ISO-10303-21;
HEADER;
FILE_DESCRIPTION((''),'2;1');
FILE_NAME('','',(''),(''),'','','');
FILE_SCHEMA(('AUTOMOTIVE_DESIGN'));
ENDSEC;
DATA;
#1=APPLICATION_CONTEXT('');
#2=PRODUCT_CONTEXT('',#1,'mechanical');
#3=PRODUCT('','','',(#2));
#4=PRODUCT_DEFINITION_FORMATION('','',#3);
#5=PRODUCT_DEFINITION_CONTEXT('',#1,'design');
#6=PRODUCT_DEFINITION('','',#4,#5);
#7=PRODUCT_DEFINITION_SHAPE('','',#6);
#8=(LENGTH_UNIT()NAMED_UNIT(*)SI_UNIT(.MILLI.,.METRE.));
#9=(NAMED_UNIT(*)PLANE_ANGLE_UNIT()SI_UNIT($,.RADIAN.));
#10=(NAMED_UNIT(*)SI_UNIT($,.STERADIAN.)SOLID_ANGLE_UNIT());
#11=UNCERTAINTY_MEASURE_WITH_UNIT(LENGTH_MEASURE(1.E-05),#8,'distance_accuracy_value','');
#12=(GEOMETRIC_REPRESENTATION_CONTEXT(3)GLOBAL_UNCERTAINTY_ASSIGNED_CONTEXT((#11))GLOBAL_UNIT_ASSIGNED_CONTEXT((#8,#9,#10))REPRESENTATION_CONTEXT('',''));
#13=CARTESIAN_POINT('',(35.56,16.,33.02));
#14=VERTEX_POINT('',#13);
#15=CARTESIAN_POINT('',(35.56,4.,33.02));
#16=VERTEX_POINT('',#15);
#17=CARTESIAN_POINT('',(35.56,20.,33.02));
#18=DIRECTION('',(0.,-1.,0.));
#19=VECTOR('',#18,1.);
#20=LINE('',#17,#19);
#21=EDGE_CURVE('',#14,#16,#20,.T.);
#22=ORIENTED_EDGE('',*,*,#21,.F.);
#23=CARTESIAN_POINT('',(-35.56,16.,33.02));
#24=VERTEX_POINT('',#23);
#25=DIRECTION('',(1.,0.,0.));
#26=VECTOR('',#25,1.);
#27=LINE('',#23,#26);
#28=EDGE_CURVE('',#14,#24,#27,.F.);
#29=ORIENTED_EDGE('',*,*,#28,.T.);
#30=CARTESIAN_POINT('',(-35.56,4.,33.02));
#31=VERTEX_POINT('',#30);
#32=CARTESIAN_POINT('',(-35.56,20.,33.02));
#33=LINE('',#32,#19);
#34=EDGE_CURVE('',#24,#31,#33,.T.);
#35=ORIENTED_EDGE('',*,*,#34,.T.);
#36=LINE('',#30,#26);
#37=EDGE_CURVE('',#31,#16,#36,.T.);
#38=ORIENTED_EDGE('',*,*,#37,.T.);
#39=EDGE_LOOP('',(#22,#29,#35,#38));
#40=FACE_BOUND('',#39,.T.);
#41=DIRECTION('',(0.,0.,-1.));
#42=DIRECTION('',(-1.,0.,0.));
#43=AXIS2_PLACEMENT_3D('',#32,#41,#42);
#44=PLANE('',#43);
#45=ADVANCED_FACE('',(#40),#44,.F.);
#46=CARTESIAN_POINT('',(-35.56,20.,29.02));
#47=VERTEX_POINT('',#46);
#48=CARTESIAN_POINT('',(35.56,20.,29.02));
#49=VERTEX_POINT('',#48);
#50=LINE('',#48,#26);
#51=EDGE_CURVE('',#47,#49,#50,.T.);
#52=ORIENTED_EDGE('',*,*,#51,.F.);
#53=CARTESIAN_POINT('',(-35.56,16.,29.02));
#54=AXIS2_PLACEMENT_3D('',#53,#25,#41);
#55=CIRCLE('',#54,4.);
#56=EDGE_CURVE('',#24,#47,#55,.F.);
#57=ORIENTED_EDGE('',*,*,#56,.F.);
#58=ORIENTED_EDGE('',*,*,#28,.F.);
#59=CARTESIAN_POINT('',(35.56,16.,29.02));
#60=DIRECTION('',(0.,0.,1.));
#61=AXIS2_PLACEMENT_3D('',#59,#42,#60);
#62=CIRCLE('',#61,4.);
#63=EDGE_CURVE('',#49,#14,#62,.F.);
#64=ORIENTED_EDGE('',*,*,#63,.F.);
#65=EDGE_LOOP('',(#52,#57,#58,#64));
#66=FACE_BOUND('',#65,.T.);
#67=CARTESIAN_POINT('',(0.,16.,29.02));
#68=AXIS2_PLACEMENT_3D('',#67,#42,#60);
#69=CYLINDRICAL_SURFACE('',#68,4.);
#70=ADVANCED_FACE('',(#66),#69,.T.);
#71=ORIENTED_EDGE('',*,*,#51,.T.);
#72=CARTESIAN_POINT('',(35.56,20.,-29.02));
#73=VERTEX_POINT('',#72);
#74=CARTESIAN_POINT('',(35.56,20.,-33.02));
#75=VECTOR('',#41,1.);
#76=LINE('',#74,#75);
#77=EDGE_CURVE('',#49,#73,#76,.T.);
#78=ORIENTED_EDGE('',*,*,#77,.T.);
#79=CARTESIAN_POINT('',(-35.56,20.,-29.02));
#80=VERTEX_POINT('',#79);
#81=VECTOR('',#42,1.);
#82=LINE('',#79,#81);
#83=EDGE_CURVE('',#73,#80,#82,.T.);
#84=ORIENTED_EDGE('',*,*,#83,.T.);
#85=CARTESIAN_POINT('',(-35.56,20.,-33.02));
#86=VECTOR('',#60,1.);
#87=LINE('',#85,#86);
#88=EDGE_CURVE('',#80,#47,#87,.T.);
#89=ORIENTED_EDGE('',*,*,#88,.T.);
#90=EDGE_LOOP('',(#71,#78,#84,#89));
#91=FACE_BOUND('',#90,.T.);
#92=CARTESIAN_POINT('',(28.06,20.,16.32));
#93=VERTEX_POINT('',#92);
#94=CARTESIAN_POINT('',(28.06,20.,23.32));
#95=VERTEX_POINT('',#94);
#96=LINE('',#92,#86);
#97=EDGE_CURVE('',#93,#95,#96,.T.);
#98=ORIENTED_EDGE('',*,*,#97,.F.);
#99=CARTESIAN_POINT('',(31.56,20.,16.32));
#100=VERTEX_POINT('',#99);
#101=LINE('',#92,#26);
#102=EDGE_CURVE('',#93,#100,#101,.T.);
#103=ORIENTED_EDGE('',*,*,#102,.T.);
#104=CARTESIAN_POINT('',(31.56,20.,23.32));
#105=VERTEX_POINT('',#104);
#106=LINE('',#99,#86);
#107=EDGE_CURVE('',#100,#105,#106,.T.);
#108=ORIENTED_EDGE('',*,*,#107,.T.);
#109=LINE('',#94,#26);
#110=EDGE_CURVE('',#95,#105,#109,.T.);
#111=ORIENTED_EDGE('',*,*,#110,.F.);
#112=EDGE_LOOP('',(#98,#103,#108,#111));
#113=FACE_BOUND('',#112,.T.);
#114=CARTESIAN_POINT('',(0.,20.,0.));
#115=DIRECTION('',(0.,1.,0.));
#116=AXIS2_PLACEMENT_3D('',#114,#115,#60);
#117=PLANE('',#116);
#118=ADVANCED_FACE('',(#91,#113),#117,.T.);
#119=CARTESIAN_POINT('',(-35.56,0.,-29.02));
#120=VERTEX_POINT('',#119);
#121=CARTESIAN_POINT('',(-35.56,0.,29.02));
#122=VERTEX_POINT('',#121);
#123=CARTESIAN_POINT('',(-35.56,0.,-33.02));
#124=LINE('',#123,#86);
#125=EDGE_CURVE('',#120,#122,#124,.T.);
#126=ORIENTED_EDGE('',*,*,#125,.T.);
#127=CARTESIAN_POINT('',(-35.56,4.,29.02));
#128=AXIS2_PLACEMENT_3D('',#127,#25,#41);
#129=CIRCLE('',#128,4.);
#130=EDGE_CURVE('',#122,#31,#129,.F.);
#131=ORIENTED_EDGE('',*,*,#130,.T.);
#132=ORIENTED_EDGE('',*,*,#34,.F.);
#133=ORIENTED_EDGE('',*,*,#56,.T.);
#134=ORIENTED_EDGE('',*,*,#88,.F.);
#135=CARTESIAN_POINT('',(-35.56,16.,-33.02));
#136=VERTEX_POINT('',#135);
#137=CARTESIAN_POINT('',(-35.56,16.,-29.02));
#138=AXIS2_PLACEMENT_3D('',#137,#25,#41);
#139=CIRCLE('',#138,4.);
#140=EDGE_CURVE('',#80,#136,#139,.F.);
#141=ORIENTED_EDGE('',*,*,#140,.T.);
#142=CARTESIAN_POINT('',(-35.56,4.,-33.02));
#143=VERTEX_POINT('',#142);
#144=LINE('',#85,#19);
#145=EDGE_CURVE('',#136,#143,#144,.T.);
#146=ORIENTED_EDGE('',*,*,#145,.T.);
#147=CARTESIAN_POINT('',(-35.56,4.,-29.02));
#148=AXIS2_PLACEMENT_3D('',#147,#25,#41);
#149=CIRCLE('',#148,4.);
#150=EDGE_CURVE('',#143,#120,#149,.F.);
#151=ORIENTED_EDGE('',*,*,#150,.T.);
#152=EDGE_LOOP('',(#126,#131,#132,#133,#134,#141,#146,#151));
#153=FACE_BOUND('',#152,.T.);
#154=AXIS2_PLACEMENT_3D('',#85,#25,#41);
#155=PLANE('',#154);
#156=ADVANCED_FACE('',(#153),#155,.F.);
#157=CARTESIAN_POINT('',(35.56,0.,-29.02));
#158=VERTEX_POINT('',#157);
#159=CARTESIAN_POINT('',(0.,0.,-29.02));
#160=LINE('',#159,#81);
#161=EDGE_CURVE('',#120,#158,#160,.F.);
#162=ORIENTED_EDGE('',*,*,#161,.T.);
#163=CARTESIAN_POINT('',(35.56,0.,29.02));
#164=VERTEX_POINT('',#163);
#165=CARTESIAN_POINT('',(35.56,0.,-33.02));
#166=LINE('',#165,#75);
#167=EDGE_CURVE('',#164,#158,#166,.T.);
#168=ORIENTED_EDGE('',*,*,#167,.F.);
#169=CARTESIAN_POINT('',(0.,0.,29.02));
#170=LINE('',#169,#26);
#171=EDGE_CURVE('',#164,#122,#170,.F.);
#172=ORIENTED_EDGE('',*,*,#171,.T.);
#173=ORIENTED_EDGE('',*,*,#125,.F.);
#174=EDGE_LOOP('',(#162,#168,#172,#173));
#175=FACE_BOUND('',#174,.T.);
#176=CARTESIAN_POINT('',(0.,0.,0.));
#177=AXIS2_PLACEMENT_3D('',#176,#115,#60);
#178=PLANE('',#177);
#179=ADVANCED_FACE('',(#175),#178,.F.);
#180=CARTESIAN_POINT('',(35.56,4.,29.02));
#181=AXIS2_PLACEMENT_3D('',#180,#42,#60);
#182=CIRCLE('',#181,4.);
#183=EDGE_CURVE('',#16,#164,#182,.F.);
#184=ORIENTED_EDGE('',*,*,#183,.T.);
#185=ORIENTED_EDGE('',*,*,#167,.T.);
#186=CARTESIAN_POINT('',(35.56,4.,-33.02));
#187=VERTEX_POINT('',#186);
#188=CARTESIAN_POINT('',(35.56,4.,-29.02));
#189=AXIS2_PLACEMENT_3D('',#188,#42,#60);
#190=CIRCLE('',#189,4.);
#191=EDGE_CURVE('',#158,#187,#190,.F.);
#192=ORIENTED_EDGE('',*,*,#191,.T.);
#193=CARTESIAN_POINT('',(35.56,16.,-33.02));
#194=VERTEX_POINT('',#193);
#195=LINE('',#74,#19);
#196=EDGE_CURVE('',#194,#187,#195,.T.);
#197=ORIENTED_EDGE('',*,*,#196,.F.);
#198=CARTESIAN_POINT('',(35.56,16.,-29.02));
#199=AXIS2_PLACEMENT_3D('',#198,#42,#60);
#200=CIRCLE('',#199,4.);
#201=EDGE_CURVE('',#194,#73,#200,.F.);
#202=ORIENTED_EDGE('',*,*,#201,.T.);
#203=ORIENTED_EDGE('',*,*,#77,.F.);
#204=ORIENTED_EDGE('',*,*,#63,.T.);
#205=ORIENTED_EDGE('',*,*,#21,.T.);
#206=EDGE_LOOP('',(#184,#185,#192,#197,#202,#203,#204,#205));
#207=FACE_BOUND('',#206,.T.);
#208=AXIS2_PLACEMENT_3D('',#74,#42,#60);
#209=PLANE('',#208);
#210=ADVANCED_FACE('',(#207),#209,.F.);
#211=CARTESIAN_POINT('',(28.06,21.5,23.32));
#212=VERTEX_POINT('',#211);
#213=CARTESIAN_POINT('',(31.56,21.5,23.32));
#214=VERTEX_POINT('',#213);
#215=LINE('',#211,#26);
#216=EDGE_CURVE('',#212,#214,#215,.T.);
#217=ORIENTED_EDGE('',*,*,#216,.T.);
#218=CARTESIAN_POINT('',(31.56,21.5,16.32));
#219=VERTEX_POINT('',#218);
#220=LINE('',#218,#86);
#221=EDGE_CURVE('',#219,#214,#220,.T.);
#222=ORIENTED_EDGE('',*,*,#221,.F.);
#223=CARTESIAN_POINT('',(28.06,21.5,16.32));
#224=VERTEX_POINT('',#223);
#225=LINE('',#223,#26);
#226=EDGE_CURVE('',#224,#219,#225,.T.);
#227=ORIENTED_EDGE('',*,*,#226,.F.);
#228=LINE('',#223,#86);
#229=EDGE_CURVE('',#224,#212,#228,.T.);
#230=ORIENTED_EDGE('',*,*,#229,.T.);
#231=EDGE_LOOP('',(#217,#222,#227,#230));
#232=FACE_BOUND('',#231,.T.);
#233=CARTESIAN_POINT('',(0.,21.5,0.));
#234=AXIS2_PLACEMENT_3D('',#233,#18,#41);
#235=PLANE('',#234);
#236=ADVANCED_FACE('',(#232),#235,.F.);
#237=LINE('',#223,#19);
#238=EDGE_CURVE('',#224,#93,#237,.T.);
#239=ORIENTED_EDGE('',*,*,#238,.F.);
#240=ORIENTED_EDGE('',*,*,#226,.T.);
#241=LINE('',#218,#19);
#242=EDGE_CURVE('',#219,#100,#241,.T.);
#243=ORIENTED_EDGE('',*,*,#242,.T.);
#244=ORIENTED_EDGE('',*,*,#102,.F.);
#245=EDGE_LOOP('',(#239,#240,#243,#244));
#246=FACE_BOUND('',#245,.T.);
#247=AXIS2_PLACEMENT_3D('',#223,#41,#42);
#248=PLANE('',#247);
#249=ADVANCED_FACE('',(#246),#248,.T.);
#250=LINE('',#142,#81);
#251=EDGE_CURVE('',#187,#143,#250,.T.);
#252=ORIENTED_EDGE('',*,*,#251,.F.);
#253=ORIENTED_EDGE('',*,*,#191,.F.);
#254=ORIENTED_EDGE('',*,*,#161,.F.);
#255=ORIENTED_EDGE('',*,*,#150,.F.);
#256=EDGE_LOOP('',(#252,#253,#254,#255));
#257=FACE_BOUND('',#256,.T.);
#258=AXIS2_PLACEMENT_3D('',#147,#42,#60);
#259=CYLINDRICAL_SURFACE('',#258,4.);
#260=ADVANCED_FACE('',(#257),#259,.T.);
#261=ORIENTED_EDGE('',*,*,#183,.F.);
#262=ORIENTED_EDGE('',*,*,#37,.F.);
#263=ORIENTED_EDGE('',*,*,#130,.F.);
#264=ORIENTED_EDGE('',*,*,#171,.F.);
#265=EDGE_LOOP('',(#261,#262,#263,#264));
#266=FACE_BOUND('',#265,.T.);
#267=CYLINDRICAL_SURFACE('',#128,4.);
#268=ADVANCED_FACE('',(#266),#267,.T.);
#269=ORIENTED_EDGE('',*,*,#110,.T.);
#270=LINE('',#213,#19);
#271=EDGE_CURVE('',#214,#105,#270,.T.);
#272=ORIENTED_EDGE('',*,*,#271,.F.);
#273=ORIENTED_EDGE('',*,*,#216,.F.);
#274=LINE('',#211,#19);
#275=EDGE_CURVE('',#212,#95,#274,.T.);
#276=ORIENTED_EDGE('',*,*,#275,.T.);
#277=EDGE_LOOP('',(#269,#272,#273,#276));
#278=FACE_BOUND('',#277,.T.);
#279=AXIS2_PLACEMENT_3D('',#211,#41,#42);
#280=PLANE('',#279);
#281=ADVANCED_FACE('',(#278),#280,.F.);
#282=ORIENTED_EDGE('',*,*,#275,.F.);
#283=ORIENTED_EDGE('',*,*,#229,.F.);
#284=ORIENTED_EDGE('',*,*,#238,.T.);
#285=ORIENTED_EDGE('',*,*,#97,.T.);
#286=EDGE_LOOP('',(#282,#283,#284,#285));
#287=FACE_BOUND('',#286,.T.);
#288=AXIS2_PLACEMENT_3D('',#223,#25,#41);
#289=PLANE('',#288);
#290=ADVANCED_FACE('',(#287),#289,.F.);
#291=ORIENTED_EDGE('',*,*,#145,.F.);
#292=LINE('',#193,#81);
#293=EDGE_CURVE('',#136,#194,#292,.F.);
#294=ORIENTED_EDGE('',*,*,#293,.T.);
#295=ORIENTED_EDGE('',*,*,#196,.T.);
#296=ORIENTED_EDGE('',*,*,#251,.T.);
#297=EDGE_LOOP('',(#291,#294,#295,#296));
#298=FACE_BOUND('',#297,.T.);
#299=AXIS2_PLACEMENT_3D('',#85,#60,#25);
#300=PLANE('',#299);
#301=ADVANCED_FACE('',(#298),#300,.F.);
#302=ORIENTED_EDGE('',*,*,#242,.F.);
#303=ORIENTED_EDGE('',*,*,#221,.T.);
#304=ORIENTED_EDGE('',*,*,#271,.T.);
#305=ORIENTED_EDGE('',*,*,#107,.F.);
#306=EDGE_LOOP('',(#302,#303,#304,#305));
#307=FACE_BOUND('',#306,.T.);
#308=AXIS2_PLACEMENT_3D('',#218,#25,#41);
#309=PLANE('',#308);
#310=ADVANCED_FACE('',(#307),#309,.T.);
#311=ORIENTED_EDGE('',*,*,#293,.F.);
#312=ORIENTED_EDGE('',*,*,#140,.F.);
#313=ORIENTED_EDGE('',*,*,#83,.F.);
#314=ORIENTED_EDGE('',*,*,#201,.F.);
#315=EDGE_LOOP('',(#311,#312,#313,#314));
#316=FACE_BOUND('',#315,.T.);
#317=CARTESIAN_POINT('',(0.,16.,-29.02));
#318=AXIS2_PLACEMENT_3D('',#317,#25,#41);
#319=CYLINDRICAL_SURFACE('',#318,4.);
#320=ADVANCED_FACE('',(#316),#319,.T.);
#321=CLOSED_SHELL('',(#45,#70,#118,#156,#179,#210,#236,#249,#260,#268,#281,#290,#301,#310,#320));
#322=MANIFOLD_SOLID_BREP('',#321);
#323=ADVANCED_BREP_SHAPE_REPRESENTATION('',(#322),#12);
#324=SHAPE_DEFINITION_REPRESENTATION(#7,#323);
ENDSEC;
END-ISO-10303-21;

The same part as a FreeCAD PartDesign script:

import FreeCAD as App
import Part
import Sketcher
from FreeCAD import Vector


def edges_at(feature, points):
    """Names of the edges that pass closest to the given points."""
    edges = feature.Shape.Edges
    near = lambda p: min(range(len(edges)), key=lambda i: edges[i].distToShape(Part.Vertex(*p))[0])
    return sorted({f"Edge{near(p) + 1}" for p in points})


def add_polygon(sketch, points):
    """Adds a closed chain of lines whose ends are joined by coincident constraints."""
    first, n = sketch.GeometryCount, len(points)
    for a, b in zip(points, points[1:] + points[:1]):
        sketch.addGeometry(Part.LineSegment(App.Vector(*a, 0), App.Vector(*b, 0)), False)
    for i in range(n):
        sketch.addConstraint(Sketcher.Constraint("Coincident", first + i, 2, first + (i + 1) % n, 1))

doc = App.newDocument("Part")
body = doc.addObject("PartDesign::Body", "Body")

# Sketch on XZ plane
sketch1 = body.newObject("Sketcher::SketchObject", "Sketch")
sketch1.AttachmentSupport = (doc.getObject("XZ_Plane"), [""])
sketch1.MapMode = "FlatFace"
add_polygon(sketch1, [(-36, -33), (-36, 33), (36, 33), (36, -33)])  # lines 0-3
sketch1.addConstraint([
    Sketcher.Constraint("Vertical", 0),
    Sketcher.Constraint("Horizontal", 1),
    Sketcher.Constraint("Vertical", 2),
    Sketcher.Constraint("Horizontal", 3),
    Sketcher.Constraint("Symmetric", 0, 2, 2, 2, -1, 1),
    Sketcher.Constraint("DistanceX", 1, 1, 1, 2, 71.12),
    Sketcher.Constraint("DistanceY", 0, 1, 0, 2, 66.04),
])
pad1 = body.newObject("PartDesign::Pad", "Pad")
pad1.Profile = sketch1
pad1.Length = 20
pad1.Reversed = True
doc.recompute()

fillet = body.newObject("PartDesign::Fillet", "Fillet")
fillet.Base = (pad1, edges_at(pad1, [
    (0, 20, 33.02),
    (0, 0, 33.02),
    (0, 0, -33.02),
    (0, 20, -33.02),
]))
fillet.Radius = 4

# Sketch on XZ plane
sketch2 = body.newObject("Sketcher::SketchObject", "Sketch001")
sketch2.AttachmentSupport = (doc.getObject("XZ_Plane"), [""])
sketch2.MapMode = "FlatFace"
sketch2.AttachmentOffset = App.Placement(Vector(0, 0, -20), App.Rotation())
add_polygon(sketch2, [(28.1, 16.3), (28.1, 23.3), (31.6, 23.3), (31.6, 16.3)])  # lines 0-3
sketch2.addConstraint([
    Sketcher.Constraint("Vertical", 0),
    Sketcher.Constraint("Horizontal", 1),
    Sketcher.Constraint("Vertical", 2),
    Sketcher.Constraint("Horizontal", 3),
    Sketcher.Constraint("DistanceY", 0, 1, 0, 2, 7.0),
    Sketcher.Constraint("DistanceX", 1, 1, 1, 2, 3.5),
    Sketcher.Constraint("DistanceX", -1, 1, 0, 2, 28.06),
    Sketcher.Constraint("DistanceY", -1, 1, 0, 2, 23.32),
])
pad2 = body.newObject("PartDesign::Pad", "Pad001")
pad2.Profile = sketch2
pad2.Length = 1.5
pad2.Reversed = True

doc.recompute()
